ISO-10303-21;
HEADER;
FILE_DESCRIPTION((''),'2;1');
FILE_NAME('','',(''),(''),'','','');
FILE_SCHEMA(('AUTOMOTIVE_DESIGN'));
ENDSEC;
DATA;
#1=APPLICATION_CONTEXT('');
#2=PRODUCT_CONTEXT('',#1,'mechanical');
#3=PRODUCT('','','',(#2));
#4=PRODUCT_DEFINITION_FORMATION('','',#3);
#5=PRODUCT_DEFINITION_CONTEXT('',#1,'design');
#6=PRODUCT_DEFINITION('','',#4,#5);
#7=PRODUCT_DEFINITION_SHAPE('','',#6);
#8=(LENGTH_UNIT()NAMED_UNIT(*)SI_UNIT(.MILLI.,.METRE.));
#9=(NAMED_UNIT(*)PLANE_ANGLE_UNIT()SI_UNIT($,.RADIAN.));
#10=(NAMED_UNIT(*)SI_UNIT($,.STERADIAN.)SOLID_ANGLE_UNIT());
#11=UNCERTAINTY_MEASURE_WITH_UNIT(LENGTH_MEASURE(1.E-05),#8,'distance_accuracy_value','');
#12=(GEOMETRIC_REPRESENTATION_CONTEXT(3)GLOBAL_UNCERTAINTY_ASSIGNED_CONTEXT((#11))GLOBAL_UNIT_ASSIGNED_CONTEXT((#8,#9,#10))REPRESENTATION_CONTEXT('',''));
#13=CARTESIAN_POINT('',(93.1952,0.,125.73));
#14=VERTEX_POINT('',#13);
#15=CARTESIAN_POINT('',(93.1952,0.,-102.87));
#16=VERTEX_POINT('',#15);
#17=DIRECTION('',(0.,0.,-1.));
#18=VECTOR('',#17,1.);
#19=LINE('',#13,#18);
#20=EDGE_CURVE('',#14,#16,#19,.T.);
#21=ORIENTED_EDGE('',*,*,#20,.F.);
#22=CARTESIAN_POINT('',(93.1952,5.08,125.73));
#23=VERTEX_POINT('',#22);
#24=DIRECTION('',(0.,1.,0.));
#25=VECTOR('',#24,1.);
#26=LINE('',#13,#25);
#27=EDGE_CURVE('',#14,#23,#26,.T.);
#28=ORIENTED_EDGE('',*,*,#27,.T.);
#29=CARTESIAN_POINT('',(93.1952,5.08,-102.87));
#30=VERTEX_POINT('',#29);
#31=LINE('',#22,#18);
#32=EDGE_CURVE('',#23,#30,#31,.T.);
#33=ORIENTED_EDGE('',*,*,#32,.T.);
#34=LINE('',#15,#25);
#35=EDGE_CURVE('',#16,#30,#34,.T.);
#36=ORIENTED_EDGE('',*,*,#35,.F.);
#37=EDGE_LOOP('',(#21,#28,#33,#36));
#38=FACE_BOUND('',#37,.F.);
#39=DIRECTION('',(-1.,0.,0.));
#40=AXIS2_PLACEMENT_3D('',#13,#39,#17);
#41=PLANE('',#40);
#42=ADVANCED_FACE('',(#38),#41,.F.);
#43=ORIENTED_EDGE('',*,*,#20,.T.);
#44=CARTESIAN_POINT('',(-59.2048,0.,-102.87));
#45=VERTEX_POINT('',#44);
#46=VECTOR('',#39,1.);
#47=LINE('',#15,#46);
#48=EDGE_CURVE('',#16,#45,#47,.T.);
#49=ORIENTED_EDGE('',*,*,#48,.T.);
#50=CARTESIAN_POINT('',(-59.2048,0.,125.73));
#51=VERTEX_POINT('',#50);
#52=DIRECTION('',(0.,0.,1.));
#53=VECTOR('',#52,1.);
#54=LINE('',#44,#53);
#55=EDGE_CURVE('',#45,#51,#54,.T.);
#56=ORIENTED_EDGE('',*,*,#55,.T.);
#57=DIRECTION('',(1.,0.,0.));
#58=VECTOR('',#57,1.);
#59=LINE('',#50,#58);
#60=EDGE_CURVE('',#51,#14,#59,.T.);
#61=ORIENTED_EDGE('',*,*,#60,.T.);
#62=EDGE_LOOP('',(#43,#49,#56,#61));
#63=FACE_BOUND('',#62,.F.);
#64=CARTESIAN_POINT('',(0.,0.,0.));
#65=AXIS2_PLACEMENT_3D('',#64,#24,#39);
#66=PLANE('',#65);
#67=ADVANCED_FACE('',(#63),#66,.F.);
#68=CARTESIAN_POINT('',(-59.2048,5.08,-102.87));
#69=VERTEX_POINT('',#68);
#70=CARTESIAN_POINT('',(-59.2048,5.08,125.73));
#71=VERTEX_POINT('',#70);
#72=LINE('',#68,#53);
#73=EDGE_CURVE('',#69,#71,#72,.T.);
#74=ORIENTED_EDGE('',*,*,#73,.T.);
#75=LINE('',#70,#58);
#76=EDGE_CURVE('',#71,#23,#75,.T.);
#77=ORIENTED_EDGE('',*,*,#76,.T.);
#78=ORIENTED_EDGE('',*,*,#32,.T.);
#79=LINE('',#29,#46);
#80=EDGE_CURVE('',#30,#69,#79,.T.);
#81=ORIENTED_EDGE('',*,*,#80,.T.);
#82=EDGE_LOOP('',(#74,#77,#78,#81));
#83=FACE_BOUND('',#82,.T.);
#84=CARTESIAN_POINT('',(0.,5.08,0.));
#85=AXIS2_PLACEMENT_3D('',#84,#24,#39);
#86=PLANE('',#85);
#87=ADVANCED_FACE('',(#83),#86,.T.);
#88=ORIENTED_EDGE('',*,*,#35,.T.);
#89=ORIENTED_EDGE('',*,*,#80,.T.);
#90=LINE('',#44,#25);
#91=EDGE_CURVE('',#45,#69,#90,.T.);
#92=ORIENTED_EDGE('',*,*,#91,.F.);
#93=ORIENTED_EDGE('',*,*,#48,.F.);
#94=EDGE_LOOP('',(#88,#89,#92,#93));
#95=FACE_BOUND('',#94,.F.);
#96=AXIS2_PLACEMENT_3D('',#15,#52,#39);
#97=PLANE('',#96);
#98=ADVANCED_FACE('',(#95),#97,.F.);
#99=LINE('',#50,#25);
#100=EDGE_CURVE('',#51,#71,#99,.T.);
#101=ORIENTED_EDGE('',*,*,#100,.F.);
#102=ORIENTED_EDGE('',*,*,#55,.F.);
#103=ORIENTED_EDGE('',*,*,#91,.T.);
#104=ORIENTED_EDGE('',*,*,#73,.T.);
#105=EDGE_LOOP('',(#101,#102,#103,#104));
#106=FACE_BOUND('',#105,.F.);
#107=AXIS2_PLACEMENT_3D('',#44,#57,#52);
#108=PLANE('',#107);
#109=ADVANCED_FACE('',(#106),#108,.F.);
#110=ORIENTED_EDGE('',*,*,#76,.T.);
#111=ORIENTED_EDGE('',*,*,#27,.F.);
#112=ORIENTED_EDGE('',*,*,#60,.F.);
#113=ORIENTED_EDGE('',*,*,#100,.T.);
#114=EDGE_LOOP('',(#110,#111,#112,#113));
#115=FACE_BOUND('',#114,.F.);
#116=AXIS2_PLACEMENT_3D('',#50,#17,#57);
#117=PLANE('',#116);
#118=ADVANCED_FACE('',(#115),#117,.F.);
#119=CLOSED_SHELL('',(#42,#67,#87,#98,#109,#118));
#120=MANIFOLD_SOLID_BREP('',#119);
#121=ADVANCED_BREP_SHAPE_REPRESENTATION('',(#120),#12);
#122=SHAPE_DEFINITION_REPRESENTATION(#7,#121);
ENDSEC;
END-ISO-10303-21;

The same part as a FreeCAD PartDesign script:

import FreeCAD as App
import Part
import Sketcher
Q = App.Units.Quantity

doc = App.newDocument("Part")
body = doc.addObject("PartDesign::Body", "Body")

sketch1 = body.newObject("Sketcher::SketchObject", "Sketch")
sketch1.AttachmentSupport = (doc.getObject("XZ_Plane"), [""])
sketch1.MapMode = "FlatFace"
sketch1.addGeometry([
    Part.LineSegment(App.Vector(-59, -103, 0), App.Vector(-59, 126, 0)),
    Part.LineSegment(App.Vector(-59, 126, 0), App.Vector(93, 126, 0)),
    Part.LineSegment(App.Vector(93, 126, 0), App.Vector(93, -103, 0)),
    Part.LineSegment(App.Vector(93, -103, 0), App.Vector(-59, -103, 0)),
], False)
sketch1.addConstraint([
    Sketcher.Constraint("Coincident", 0, 2, 1, 1),
    Sketcher.Constraint("Coincident", 1, 2, 2, 1),
    Sketcher.Constraint("Coincident", 2, 2, 3, 1),
    Sketcher.Constraint("Coincident", 3, 2, 0, 1),
    Sketcher.Constraint("Vertical", 0),
    Sketcher.Constraint("Horizontal", 1),
    Sketcher.Constraint("Vertical", 2),
    Sketcher.Constraint("Horizontal", 3),
    Sketcher.Constraint("DistanceX", 1, 1, 1, 2, Q("6 in")),
    Sketcher.Constraint("DistanceY", 0, 1, 0, 2, Q("9 in")),
    Sketcher.Constraint("DistanceY", -1, 1, 0, 2, Q("4.95 in")),
    Sketcher.Constraint("DistanceX", 0, 2, -1, 1, Q("2.3309 in")),
])
pad1 = body.newObject("PartDesign::Pad", "Pad")
pad1.Profile = sketch1
pad1.Length = Q("0.2 in")
pad1.Reversed = True

doc.recompute()
